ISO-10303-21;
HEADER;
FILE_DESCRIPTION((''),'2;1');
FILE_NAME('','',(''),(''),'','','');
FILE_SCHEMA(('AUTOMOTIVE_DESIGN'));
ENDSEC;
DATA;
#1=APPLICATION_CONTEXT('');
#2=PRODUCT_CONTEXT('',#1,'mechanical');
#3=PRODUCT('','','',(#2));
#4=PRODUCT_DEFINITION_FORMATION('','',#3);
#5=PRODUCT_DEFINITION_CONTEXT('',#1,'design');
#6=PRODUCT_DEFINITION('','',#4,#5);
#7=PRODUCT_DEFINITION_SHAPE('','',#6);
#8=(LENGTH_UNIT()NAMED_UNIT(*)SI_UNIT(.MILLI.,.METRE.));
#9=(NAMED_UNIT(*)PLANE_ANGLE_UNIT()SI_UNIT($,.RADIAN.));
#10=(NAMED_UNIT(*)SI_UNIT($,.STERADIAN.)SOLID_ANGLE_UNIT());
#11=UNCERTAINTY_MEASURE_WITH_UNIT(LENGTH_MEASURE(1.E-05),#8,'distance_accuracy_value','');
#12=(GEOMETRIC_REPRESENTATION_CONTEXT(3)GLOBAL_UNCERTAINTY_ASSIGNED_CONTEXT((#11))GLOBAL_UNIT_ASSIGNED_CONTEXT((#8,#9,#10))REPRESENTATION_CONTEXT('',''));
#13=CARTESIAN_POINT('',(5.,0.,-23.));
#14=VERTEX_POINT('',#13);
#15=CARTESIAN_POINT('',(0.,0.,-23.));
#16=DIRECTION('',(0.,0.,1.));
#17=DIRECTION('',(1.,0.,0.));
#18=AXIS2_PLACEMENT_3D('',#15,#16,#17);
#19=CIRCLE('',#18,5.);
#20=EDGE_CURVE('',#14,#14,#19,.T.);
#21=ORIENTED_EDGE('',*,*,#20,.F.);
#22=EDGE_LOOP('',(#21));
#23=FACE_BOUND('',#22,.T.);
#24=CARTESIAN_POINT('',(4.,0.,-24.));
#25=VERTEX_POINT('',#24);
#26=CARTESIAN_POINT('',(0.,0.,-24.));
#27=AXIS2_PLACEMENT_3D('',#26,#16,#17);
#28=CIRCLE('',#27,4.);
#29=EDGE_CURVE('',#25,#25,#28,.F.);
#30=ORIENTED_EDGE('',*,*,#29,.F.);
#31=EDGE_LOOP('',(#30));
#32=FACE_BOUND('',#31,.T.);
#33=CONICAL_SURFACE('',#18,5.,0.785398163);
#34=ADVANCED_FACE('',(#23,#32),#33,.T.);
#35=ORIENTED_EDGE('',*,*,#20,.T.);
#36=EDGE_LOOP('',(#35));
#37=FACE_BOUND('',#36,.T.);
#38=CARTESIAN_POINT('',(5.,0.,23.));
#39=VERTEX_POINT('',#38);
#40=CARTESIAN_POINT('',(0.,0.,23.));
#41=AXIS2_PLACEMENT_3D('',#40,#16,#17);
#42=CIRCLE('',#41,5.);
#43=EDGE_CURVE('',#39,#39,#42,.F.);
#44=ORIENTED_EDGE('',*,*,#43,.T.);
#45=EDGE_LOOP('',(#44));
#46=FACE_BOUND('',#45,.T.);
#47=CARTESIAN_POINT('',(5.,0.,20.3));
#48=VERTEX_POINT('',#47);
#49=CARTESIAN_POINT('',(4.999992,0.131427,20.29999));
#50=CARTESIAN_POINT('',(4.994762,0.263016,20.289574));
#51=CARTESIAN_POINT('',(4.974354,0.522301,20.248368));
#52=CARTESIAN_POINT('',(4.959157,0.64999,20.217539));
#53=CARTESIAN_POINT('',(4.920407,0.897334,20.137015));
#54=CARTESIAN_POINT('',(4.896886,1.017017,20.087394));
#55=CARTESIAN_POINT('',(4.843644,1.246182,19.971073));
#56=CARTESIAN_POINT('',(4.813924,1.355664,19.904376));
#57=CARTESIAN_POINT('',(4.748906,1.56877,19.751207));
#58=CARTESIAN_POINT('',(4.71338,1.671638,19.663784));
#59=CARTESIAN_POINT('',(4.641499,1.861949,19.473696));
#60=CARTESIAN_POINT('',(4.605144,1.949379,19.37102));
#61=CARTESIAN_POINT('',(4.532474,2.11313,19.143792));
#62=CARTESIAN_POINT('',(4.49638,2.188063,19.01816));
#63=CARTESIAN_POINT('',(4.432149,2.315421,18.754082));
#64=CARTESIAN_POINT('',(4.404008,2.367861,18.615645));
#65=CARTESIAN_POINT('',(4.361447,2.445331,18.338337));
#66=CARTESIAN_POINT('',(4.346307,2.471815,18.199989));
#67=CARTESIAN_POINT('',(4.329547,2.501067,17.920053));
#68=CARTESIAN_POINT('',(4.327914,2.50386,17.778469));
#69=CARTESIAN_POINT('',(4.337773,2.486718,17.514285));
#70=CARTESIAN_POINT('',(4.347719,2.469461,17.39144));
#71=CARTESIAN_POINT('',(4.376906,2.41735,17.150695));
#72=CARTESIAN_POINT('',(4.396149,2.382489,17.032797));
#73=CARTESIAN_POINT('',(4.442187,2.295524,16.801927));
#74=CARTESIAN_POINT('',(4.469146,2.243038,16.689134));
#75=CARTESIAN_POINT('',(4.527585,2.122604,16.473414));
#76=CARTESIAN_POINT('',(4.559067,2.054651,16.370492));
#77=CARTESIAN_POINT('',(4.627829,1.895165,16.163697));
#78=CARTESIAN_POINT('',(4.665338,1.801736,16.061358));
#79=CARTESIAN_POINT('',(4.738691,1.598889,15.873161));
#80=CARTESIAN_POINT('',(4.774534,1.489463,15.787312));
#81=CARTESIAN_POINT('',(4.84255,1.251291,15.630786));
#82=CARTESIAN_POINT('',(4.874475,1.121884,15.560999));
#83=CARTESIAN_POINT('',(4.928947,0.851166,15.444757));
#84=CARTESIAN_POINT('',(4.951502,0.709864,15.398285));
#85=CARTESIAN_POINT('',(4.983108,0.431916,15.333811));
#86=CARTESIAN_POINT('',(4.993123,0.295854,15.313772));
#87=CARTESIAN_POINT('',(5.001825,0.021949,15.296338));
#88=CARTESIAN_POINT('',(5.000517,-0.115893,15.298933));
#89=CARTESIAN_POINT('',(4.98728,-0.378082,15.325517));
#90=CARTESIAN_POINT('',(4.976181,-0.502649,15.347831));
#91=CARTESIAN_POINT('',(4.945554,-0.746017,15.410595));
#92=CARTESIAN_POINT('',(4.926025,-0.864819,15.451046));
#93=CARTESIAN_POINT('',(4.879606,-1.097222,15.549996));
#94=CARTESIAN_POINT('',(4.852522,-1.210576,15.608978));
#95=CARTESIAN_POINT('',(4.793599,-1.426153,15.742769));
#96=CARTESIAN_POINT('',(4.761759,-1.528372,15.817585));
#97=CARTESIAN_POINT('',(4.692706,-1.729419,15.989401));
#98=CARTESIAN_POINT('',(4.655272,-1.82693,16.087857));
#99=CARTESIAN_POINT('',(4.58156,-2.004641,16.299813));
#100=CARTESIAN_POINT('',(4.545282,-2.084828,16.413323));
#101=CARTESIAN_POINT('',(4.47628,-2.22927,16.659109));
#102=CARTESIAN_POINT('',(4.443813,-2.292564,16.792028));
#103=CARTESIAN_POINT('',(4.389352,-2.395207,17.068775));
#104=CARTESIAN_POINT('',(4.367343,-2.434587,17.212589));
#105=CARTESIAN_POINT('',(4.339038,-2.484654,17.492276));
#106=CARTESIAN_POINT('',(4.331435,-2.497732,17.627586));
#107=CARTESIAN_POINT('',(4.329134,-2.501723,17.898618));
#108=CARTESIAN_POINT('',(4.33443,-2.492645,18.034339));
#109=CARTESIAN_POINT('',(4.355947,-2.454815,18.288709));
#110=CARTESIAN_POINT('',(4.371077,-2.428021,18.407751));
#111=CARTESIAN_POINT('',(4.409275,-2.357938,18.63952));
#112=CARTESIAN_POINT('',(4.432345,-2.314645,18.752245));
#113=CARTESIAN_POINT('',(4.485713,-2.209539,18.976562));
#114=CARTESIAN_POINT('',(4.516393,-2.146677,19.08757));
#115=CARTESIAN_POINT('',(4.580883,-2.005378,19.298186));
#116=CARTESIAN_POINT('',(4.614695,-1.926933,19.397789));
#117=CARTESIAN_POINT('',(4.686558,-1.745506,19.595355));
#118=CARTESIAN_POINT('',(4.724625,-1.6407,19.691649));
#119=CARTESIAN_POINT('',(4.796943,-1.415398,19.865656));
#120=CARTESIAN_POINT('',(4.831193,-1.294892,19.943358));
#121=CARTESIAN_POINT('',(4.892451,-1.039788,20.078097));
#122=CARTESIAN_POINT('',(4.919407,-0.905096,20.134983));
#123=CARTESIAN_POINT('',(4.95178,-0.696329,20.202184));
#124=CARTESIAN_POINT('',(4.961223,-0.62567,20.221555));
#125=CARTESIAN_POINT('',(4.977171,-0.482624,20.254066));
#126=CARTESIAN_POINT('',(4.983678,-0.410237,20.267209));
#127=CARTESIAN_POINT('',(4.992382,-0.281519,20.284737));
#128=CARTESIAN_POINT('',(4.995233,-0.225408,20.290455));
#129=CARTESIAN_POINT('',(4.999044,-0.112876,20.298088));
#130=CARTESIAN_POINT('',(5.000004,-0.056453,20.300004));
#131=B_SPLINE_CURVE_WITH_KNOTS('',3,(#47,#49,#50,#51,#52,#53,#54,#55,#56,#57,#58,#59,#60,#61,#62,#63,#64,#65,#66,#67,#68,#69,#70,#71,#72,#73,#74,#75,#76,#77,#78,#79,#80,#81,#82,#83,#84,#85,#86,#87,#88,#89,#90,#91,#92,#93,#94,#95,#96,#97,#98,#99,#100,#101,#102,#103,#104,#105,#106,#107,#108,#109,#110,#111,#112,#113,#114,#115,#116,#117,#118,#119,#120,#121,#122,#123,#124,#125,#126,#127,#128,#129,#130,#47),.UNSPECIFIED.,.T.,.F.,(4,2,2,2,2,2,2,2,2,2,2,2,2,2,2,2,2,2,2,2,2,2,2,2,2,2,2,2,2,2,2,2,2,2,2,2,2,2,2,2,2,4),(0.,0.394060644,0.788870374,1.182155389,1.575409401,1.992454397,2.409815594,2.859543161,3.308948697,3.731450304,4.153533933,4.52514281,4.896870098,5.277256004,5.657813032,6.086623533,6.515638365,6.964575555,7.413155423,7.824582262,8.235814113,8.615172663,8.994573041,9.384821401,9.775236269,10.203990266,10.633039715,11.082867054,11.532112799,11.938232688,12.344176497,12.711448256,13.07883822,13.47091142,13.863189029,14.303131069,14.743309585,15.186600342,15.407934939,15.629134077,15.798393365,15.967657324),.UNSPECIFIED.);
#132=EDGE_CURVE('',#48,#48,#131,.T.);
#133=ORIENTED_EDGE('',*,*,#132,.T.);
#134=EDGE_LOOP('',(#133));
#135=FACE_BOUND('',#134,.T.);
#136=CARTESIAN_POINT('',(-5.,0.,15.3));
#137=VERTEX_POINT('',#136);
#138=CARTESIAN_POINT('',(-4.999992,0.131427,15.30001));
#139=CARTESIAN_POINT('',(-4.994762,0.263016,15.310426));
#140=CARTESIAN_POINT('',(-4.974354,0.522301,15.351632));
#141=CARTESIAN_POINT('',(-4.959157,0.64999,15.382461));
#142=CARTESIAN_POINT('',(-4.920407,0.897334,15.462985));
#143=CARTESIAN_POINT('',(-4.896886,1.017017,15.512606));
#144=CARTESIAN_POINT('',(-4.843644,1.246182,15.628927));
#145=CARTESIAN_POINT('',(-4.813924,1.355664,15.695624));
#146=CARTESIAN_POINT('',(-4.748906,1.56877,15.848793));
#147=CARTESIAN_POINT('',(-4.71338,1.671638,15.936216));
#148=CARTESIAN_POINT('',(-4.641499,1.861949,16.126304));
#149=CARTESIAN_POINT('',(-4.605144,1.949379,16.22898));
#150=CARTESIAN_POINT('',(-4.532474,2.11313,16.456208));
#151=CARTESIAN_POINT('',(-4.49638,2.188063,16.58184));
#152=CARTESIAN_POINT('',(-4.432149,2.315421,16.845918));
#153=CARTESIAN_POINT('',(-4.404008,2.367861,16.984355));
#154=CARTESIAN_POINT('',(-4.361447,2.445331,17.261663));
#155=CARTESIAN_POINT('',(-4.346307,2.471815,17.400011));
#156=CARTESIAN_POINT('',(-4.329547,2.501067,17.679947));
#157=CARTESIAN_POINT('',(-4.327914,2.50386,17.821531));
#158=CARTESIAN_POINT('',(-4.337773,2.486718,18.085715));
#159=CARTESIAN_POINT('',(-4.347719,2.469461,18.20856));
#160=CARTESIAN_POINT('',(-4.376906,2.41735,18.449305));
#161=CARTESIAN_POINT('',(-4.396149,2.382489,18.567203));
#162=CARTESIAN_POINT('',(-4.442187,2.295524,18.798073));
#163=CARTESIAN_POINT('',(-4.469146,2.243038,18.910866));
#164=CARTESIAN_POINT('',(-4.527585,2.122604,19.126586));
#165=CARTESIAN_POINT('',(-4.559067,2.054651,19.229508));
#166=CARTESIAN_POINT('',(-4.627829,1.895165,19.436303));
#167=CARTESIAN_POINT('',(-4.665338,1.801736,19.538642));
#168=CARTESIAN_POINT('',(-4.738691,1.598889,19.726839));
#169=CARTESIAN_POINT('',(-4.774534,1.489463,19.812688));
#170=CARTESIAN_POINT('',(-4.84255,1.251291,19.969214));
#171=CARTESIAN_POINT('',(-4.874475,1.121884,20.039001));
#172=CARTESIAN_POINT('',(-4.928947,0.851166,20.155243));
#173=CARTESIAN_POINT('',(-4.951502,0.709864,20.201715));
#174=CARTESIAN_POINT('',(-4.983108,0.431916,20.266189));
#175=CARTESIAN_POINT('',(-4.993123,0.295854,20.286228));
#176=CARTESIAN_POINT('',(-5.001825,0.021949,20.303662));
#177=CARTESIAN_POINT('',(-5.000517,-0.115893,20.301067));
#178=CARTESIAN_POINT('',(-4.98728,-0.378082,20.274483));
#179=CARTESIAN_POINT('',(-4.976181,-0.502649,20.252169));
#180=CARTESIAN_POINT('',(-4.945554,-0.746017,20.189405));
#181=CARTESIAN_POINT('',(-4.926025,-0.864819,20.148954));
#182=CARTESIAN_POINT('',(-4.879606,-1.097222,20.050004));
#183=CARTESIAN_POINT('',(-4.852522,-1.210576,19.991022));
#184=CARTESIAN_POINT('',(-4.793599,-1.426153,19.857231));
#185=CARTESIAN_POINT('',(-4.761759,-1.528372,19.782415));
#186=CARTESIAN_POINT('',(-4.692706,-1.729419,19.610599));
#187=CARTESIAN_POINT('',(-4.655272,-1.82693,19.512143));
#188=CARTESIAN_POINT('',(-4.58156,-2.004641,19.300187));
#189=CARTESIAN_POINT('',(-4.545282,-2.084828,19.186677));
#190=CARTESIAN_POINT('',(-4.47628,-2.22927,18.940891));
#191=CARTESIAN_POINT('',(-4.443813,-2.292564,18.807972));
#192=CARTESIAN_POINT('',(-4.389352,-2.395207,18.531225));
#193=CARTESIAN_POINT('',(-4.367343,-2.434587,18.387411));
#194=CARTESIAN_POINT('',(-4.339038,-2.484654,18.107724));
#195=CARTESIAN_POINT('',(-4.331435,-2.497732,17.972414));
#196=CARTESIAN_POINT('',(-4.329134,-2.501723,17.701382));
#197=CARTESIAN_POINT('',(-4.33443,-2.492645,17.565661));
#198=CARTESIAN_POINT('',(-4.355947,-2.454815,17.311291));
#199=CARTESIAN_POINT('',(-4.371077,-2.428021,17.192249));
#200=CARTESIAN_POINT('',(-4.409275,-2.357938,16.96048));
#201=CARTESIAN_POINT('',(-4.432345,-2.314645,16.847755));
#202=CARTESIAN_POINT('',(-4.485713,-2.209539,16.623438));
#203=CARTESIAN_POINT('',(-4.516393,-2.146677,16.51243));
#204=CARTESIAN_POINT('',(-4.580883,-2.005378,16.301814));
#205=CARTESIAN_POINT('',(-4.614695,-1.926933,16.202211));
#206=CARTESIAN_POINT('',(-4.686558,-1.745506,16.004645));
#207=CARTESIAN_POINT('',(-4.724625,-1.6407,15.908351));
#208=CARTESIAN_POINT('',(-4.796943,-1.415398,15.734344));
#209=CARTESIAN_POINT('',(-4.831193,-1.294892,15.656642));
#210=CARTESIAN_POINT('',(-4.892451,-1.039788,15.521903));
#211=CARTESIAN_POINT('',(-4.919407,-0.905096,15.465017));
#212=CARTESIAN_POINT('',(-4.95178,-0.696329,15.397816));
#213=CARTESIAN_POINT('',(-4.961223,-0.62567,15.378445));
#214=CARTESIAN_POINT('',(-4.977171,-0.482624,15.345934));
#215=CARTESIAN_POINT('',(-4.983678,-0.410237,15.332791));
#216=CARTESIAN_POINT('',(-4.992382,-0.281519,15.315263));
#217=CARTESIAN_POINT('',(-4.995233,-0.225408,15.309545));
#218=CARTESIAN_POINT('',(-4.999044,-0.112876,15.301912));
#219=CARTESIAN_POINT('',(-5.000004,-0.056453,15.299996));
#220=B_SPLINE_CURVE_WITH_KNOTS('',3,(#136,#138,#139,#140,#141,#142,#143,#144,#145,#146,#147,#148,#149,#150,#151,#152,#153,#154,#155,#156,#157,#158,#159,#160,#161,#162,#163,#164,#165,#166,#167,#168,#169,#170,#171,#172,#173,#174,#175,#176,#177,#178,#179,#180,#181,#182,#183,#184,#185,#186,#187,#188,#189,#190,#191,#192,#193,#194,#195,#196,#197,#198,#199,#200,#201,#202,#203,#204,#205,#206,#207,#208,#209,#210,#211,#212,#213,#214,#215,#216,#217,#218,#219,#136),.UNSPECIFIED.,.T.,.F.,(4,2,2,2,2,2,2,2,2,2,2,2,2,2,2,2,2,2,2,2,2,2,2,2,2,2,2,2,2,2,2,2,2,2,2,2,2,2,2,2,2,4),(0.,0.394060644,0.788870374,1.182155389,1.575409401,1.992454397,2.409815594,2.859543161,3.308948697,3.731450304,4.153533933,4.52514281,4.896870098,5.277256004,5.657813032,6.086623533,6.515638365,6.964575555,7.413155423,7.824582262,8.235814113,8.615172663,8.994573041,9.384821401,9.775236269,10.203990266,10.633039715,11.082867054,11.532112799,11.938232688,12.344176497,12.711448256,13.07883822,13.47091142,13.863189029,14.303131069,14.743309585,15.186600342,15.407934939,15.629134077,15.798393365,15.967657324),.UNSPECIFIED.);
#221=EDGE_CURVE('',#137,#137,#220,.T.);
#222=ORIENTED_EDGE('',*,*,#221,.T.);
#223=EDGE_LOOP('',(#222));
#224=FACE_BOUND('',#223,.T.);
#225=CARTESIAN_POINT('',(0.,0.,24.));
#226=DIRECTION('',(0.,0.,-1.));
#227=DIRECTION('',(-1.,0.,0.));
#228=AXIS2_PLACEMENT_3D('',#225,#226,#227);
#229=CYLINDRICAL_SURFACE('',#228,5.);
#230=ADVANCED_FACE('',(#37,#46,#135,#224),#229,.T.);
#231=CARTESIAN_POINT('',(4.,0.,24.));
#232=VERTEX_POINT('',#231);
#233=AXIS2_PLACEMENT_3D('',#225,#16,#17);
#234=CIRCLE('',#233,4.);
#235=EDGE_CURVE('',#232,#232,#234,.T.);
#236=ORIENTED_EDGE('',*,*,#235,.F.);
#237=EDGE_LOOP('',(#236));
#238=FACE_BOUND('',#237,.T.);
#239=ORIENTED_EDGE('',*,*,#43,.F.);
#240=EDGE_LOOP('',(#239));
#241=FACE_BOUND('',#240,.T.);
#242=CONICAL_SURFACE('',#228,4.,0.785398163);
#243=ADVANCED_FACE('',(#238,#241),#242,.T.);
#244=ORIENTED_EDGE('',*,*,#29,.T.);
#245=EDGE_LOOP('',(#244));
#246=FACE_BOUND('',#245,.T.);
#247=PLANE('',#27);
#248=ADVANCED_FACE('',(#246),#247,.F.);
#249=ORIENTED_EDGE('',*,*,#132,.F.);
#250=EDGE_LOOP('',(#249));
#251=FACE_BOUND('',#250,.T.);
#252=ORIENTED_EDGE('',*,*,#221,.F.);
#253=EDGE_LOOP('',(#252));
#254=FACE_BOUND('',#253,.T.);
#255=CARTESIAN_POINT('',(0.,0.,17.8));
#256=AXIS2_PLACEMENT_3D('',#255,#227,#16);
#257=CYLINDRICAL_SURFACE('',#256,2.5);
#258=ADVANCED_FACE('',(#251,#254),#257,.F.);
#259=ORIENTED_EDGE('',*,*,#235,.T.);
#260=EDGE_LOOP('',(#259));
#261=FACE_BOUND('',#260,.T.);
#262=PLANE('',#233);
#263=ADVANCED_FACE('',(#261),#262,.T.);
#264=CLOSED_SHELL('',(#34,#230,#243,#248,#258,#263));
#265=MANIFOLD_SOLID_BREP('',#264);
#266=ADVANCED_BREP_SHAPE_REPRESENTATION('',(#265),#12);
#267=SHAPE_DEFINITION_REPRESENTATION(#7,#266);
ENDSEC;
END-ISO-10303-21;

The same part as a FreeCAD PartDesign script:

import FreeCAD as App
import Part
import Sketcher
from FreeCAD import Vector


def edges_at(feature, points):
    """Names of the edges that pass closest to the given points."""
    edges = feature.Shape.Edges
    near = lambda p: min(range(len(edges)), key=lambda i: edges[i].distToShape(Part.Vertex(*p))[0])
    return sorted({f"Edge{near(p) + 1}" for p in points})


def add_polygon(sketch, points):
    """Adds a closed chain of lines whose ends are joined by coincident constraints."""
    first, n = sketch.GeometryCount, len(points)
    for a, b in zip(points, points[1:] + points[:1]):
        sketch.addGeometry(Part.LineSegment(App.Vector(*a, 0), App.Vector(*b, 0)), False)
    for i in range(n):
        sketch.addConstraint(Sketcher.Constraint("Coincident", first + i, 2, first + (i + 1) % n, 1))

doc = App.newDocument("Part")
params = doc.addObject("Spreadsheet::Sheet", "Params")
for row, (alias, value) in enumerate([
    ("sketch1_diameter", "10 mm"),
    ("pad1_length", "48 mm"),
    ("chamfer_size", "1 mm"),
    ("sketch2_width", "5 mm"),
    ("sketch2_height", "2.5 mm"),
    ("groove_angle", "360 deg"),
], start=1):
    params.set(f"A{row}", alias)
    params.set(f"B{row}", "=" + value)
    params.setAlias(f"B{row}", alias)

body = doc.addObject("PartDesign::Body", "Body")

sketch1 = doc.addObject("Sketcher::SketchObject", "Sketch")
body.addObject(sketch1)
sketch1.AttachmentSupport = (doc.XY_Plane, [""])
sketch1.MapMode = "FlatFace"
sketch1.addGeometry(Part.Circle(Vector(0, 0, 0), Vector(0, 0, 1), 5), False)
sketch1.addConstraint([
    Sketcher.Constraint("Coincident", 0, 3, -1, 1),
    Sketcher.Constraint("Diameter", 0, 10.0),
])
sketch1.setExpression("Constraints[1]", "Params.sketch1_diameter")
pad1 = doc.addObject("PartDesign::Pad", "Pad")
body.addObject(pad1)
pad1.Profile = sketch1
pad1.setExpression("Length", "Params.pad1_length")
pad1.Midplane = True
doc.recompute()

chamfer = doc.addObject("PartDesign::Chamfer", "Chamfer")
body.addObject(chamfer)
chamfer.Base = (pad1, edges_at(pad1, [(-5, 0, -24), (-5, 0, 24)]))
chamfer.setExpression("Size", "Params.chamfer_size")

sketch2 = doc.addObject("Sketcher::SketchObject", "Sketch001")
body.addObject(sketch2)
sketch2.AttachmentSupport = (doc.XZ_Plane, [""])
sketch2.MapMode = "FlatFace"
add_polygon(sketch2, [(5, 17.8), (0, 17.8), (0, 20.3), (5, 20.3)])
sketch2.addGeometry(Part.LineSegment(Vector(0, 17.8, 0), Vector(5, 17.8, 0)), True)
sketch2.addConstraint([
    Sketcher.Constraint("Horizontal", 0),
    Sketcher.Constraint("Vertical", 1),
    Sketcher.Constraint("Horizontal", 2),
    Sketcher.Constraint("Vertical", 3),
    Sketcher.Constraint("Horizontal", 4),
    Sketcher.Constraint("Coincident", 4, 1, 0, 2),
    Sketcher.Constraint("PointOnObject", 0, 2, -2),
    Sketcher.Constraint("Vertical", 2, 2, 4, 2),
    Sketcher.Constraint("DistanceX", 0, 2, 0, 1, 5.0),
    Sketcher.Constraint("DistanceY", 1, 1, 1, 2, 2.5),
    Sketcher.Constraint("DistanceY", -1, 1, 0, 2, 17.8),
])
sketch2.setExpression("Constraints[12]", "Params.sketch2_width")
sketch2.setExpression("Constraints[13]", "Params.sketch2_height")
groove = doc.addObject("PartDesign::Groove", "Groove")
body.addObject(groove)
groove.Profile = sketch2
groove.ReferenceAxis = (sketch2, ["Axis0"])
groove.setExpression("Angle", "Params.groove_angle")
doc.recompute()

mirrored = doc.addObject("PartDesign::Mirrored", "Mirrored")
body.addObject(mirrored)
mirrored.Originals = [groove]
mirrored.MirrorPlane = (doc.YZ_Plane, [""])
body.Tip = mirrored

doc.recompute()
